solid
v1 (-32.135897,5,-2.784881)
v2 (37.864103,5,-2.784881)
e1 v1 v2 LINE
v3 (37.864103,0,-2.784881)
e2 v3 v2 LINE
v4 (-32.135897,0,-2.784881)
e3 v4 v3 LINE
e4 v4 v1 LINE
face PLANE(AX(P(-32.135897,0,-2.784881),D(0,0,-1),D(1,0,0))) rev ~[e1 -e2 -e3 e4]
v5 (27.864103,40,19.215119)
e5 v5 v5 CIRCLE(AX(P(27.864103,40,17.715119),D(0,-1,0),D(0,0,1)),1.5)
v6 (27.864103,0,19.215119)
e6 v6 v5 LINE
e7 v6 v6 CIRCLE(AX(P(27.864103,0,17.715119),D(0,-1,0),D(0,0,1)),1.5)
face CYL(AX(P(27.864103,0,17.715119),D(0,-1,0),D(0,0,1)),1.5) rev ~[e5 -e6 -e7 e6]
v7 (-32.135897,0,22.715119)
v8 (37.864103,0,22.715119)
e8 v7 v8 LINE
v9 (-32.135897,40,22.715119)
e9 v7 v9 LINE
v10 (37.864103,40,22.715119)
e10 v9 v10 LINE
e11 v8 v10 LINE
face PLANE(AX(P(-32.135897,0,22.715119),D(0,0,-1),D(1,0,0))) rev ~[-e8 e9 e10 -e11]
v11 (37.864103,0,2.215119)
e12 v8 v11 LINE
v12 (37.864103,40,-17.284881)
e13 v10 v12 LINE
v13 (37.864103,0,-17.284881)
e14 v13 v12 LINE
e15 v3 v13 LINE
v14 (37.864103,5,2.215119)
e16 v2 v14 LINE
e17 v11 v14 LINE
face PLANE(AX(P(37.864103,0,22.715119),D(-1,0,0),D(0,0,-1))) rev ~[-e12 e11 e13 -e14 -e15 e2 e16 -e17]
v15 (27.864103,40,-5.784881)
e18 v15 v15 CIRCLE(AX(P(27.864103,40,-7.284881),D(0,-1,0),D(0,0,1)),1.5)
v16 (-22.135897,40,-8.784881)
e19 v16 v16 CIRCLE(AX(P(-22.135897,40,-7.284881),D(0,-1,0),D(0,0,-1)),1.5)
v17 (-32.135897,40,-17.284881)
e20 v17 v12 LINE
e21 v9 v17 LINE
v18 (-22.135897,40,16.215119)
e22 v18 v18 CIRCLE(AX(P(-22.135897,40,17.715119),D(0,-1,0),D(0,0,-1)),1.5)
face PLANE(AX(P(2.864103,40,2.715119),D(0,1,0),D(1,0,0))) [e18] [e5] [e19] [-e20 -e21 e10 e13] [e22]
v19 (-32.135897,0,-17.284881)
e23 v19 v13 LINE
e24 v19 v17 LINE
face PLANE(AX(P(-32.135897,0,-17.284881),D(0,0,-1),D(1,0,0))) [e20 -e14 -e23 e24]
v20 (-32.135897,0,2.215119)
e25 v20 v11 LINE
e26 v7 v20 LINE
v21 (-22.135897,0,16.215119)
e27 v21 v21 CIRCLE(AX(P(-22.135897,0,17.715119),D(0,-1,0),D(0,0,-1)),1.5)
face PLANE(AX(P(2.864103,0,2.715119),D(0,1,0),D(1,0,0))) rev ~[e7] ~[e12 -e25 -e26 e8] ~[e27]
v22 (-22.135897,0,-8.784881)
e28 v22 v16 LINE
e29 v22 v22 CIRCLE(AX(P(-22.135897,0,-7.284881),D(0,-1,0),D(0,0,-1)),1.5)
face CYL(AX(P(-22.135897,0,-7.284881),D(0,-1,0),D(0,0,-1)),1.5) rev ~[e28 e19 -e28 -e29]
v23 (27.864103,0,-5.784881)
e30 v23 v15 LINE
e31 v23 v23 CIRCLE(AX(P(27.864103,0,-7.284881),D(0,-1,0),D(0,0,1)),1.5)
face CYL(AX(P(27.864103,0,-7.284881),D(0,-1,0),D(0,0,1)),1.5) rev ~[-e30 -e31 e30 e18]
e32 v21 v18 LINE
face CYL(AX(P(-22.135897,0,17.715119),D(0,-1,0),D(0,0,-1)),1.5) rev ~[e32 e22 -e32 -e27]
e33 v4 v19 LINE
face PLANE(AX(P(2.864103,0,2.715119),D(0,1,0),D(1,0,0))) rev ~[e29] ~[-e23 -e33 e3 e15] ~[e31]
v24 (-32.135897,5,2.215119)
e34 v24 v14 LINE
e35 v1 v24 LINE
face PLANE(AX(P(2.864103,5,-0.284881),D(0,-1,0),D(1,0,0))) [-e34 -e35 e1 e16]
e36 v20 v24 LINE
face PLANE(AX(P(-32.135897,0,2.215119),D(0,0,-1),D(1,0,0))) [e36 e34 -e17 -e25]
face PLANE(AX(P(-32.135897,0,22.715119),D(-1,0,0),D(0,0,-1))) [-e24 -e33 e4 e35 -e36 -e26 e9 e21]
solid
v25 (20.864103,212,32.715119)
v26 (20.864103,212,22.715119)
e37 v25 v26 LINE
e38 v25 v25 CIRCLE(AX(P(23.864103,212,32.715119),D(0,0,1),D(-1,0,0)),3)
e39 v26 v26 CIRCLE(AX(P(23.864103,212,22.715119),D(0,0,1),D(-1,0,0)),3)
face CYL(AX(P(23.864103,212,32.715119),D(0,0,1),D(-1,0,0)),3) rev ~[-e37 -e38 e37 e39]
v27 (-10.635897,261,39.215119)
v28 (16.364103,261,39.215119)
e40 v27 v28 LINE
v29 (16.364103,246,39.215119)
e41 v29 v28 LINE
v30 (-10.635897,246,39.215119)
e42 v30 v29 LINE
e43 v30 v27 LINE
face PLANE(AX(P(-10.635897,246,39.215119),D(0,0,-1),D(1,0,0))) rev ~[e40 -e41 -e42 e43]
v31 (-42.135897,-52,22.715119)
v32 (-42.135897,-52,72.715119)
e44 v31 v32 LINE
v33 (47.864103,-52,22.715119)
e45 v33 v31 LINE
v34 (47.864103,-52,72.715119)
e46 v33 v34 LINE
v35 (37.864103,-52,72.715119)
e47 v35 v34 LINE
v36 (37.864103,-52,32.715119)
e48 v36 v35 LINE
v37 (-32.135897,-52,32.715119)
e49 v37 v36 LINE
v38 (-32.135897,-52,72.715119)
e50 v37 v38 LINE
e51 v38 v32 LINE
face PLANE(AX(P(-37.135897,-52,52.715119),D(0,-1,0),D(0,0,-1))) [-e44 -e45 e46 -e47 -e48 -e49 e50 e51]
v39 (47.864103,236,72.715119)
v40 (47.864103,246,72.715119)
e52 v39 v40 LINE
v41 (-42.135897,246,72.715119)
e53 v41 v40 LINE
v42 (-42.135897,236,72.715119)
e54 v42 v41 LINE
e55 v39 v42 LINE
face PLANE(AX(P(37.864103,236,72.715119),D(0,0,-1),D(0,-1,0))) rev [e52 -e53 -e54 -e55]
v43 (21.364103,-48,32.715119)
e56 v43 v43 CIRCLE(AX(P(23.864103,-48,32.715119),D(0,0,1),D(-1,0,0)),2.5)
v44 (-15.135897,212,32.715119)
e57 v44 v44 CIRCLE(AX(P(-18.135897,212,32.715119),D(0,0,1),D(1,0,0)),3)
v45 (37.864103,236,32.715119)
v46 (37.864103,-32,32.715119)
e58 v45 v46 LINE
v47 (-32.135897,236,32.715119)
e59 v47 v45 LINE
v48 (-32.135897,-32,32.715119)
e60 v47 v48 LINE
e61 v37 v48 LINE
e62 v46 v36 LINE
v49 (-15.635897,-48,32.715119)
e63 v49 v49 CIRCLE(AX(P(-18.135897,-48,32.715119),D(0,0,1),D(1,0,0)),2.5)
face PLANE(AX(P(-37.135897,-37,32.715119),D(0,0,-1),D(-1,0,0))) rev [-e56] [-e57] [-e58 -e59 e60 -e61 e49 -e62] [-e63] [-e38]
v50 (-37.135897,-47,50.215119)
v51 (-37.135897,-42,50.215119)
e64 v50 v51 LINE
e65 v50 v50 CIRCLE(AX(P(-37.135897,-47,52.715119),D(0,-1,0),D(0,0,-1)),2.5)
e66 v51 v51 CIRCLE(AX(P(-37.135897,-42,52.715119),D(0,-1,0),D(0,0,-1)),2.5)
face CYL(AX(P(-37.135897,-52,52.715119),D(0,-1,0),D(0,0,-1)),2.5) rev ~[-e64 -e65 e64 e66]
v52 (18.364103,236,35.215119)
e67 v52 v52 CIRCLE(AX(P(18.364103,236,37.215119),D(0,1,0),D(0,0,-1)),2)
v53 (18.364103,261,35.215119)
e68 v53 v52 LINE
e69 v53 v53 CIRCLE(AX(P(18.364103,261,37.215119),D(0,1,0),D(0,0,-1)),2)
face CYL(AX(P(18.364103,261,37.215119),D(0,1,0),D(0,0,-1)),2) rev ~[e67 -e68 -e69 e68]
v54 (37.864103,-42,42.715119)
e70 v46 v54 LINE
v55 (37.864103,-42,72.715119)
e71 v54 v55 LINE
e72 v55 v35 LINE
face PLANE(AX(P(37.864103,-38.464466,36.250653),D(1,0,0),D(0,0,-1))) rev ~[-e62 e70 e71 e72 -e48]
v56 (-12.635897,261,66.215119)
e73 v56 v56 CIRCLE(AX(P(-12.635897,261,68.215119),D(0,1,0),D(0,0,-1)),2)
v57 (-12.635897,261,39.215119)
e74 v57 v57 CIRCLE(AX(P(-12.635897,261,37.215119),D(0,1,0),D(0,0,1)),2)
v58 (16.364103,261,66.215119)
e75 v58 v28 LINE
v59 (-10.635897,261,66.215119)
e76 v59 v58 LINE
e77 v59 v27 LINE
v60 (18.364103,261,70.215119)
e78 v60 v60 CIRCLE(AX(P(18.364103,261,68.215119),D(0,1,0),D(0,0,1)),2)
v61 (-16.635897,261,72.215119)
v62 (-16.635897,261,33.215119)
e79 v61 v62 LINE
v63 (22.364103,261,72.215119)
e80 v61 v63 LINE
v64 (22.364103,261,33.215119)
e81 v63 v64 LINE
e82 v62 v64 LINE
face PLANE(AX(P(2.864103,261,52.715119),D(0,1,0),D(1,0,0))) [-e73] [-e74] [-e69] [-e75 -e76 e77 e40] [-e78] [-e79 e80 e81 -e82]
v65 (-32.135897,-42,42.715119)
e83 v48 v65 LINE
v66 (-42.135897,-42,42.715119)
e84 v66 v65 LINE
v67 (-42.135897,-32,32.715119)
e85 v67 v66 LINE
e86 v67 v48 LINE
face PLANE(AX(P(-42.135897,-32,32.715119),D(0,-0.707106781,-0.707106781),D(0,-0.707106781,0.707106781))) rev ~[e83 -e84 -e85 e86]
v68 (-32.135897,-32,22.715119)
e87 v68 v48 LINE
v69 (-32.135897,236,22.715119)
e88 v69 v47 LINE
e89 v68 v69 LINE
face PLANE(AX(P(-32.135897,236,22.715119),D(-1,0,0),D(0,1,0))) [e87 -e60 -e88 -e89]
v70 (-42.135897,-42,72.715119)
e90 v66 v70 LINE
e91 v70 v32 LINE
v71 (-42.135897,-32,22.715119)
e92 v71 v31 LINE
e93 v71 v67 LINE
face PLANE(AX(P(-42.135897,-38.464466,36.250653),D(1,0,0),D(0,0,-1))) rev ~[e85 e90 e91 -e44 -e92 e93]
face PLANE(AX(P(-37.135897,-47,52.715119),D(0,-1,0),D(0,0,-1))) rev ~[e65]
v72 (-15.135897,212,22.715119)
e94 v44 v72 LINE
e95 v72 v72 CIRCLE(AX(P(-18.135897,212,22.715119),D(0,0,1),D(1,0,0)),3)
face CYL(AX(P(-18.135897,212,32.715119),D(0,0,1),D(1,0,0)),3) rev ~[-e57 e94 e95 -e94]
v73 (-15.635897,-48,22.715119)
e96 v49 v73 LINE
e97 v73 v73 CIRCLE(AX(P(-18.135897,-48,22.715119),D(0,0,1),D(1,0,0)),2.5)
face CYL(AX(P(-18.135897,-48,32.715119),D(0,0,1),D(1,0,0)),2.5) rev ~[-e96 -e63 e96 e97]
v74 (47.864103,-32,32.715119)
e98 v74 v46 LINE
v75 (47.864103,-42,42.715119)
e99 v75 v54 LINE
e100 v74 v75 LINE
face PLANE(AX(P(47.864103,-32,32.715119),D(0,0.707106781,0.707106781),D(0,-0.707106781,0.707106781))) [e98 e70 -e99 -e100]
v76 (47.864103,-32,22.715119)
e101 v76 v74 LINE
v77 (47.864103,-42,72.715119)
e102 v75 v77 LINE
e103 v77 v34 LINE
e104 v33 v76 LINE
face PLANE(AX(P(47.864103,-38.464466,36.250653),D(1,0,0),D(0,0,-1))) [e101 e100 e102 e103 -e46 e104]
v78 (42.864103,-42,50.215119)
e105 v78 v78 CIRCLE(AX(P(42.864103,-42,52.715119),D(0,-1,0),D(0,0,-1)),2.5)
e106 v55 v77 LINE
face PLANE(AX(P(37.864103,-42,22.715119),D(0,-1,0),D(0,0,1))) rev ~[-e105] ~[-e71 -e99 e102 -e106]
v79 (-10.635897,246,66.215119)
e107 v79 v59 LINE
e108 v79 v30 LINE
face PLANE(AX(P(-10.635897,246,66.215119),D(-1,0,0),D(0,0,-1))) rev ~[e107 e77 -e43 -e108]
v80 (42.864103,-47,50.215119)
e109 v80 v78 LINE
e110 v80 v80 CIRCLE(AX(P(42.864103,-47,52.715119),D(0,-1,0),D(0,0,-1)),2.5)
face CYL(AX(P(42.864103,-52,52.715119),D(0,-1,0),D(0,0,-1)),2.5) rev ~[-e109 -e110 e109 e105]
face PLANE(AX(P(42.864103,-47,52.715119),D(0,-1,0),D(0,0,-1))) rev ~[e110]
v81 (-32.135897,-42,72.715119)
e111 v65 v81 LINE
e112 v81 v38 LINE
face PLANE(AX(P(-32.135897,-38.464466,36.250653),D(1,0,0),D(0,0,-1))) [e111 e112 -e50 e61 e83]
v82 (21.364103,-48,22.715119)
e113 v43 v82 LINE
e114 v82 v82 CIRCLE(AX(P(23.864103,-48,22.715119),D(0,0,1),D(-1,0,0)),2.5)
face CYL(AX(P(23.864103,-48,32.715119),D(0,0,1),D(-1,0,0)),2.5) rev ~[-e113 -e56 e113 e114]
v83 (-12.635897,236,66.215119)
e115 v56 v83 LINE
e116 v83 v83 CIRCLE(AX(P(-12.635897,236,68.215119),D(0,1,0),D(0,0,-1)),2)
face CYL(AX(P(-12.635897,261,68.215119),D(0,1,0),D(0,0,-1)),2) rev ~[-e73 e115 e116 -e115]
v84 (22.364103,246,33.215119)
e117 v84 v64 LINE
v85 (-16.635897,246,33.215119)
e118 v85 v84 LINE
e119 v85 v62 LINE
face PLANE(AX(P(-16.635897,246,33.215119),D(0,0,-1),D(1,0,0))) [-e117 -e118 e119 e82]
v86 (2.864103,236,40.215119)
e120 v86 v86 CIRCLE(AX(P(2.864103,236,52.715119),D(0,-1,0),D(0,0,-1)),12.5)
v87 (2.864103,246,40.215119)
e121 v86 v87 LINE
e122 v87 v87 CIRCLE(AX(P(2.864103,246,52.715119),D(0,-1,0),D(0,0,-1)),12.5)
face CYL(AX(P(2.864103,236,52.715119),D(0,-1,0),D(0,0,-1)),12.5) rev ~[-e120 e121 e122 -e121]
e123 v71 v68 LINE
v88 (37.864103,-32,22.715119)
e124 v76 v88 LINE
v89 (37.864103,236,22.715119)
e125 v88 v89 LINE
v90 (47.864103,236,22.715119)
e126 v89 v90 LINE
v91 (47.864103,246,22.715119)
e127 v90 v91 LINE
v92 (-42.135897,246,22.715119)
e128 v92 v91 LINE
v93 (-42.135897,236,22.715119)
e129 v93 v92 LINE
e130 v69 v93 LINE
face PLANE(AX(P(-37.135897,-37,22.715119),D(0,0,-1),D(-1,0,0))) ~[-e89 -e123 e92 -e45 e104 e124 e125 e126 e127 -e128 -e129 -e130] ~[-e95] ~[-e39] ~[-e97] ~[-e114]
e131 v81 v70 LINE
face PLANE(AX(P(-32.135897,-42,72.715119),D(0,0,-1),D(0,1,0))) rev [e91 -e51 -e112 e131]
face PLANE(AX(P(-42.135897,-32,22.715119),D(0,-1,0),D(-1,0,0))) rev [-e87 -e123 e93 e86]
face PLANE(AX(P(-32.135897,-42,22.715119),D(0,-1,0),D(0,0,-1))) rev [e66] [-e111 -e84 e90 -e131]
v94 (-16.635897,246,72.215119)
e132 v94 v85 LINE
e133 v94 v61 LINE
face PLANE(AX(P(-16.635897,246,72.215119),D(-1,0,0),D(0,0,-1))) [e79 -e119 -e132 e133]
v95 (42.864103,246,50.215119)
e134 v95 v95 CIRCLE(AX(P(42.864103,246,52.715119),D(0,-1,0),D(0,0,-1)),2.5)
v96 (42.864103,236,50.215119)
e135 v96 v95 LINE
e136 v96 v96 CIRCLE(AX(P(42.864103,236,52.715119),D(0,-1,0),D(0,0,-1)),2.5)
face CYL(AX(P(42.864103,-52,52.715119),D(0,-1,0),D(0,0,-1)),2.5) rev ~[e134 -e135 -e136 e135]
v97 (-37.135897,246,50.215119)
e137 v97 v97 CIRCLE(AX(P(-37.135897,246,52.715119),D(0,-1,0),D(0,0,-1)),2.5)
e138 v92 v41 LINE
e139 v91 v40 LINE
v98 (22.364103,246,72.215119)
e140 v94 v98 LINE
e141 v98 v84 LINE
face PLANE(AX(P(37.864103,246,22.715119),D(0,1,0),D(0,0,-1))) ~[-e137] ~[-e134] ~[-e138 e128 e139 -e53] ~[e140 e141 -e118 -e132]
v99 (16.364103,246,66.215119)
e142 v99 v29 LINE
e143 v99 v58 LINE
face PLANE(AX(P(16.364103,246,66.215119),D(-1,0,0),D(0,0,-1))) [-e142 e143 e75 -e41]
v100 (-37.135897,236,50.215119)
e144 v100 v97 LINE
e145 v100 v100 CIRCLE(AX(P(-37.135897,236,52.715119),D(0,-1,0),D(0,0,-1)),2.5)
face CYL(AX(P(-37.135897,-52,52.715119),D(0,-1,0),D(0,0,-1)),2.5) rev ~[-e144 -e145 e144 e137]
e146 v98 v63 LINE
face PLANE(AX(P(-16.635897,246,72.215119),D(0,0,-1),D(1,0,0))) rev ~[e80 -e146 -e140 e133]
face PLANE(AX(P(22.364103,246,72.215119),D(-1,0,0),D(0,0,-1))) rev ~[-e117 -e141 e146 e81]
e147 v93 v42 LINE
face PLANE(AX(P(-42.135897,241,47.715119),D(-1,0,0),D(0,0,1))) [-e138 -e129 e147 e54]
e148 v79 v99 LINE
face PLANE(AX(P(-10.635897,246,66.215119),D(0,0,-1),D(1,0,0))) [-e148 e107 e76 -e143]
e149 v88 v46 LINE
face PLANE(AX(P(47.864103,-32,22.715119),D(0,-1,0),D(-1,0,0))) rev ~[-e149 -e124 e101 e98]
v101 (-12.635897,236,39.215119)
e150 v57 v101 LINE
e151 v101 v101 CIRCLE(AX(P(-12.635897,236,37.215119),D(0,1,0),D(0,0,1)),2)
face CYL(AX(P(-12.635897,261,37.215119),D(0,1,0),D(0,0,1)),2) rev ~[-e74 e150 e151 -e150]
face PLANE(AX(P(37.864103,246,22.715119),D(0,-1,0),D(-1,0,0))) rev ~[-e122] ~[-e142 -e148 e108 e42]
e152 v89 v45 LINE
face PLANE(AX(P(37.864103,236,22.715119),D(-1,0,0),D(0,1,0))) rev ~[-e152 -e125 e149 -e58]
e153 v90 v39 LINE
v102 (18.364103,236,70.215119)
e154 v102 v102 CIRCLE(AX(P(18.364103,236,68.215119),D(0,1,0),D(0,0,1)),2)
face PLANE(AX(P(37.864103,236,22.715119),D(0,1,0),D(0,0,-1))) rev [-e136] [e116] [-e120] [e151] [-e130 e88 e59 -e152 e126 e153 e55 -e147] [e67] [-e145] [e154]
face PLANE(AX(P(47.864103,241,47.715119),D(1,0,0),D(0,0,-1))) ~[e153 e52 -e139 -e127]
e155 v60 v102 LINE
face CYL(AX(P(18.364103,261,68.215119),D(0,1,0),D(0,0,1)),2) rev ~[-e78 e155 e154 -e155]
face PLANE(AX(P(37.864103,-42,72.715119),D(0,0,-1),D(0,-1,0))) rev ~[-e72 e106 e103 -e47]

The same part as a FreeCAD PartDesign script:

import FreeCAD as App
import Part
import Sketcher

doc = App.newDocument("Part")
params = doc.addObject("Spreadsheet::Sheet", "Params")
for row, (alias, value) in enumerate([
    ("sketch1_width", "70 mm"),
    ("sketch1_height", "40 mm"),
    ("pad1_length", "40 mm"),
    ("sketch2_diameter", "3 mm"),
    ("sketch3_width", "70 mm"),
    ("sketch3_height", "5 mm"),
    ("pocket2_length", "5 mm"),
    ("sketch4_width", "70 mm"),
    ("sketch4_height", "10 mm"),
    ("pad2_length", "52 mm"),
    ("pad2_length2", "236 mm"),
    ("sketch5_diameter", "5 mm"),
    ("pocket3_length", "10 mm"),
    ("sketch6_diameter", "6 mm"),
    ("pocket4_length", "10 mm"),
    ("sketch7_width", "70 mm"),
    ("sketch7_height", "10 mm"),
    ("pad3_length", "50 mm"),
    ("sketch8_diameter", "25 mm"),
    ("pocket5_length", "10 mm"),
    ("sketch9_width", "39 mm"),
    ("sketch9_width2", "27 mm"),
    ("pad4_length", "15 mm"),
    ("sketch10_diameter", "4 mm"),
    ("pocket6_length", "25 mm"),
    ("sketch11_width", "10 mm"),
    ("sketch11_height", "50 mm"),
    ("pad5_length", "10 mm"),
    ("sketch12_width", "10 mm"),
    ("sketch12_height", "50 mm"),
    ("pad6_length", "10 mm"),
    ("sketch13_diameter", "5 mm"),
    ("sketch14_diameter", "5 mm"),
    ("pad7_length", "5 mm"),
    ("sketch15_width", "10 mm"),
    ("pad8_length", "10 mm"),
    ("sketch16_width", "10 mm"),
    ("pad9_length", "10 mm"),
    ("sketch17_width", "10 mm"),
    ("pad10_length", "10 mm"),
], start=1):
    params.set(f"A{row}", alias)
    params.set(f"B{row}", "=" + value)
    params.setAlias(f"B{row}", alias)

body = doc.addObject("PartDesign::Body", "Body")

# Sketch on XZ plane
sketch1 = body.newObject("Sketcher::SketchObject", "Sketch")
sketch1.AttachmentSupport = (doc.getObject("XZ_Plane"), [""])
sketch1.MapMode = "FlatFace"
sketch1.addGeometry([
    Part.LineSegment(App.Vector(-32.135897, -17.284881, 0), App.Vector(-32.135897, 22.715119, 0)),
    Part.LineSegment(App.Vector(-32.135897, 22.715119, 0), App.Vector(37.864103, 22.715119, 0)),
    Part.LineSegment(App.Vector(37.864103, 22.715119, 0), App.Vector(37.864103, -17.284881, 0)),
    Part.LineSegment(App.Vector(37.864103, -17.284881, 0), App.Vector(-32.135897, -17.284881, 0)),
], False)
sketch1.addConstraint([
    Sketcher.Constraint("Coincident", 0, 2, 1, 1),
    Sketcher.Constraint("Coincident", 1, 2, 2, 1),
    Sketcher.Constraint("Coincident", 2, 2, 3, 1),
    Sketcher.Constraint("Coincident", 3, 2, 0, 1),
    Sketcher.Constraint("Vertical", 0),
    Sketcher.Constraint("Horizontal", 1),
    Sketcher.Constraint("Vertical", 2),
    Sketcher.Constraint("Horizontal", 3),
    Sketcher.Constraint("DistanceX", 1, 1, 1, 2, 70.0),
    Sketcher.Constraint("DistanceY", 0, 1, 0, 2, 40.0),
    Sketcher.Constraint("DistanceY", -1, 1, 0, 2, 22.715119),
    Sketcher.Constraint("DistanceX", 0, 2, -1, 1, 32.135897),
])
sketch1.setExpression("Constraints[8]", "Params.sketch1_width")
sketch1.setExpression("Constraints[9]", "Params.sketch1_height")
pad1 = body.newObject("PartDesign::Pad", "Pad")
pad1.Profile = sketch1
pad1.setExpression("Length", "Params.pad1_length")
pad1.Reversed = True

# Sketch on XZ plane
sketch2 = body.newObject("Sketcher::SketchObject", "Sketch001")
sketch2.AttachmentSupport = (doc.getObject("XZ_Plane"), [""])
sketch2.MapMode = "FlatFace"
sketch2.addGeometry([
    Part.Circle(App.Vector(-22.135897, 17.715119, 0), App.Vector(0, 0, 1), 1.5),
    Part.Circle(App.Vector(27.864103, 17.715119, 0), App.Vector(0, 0, 1), 1.5),
    Part.Circle(App.Vector(-22.135897, -7.284881, 0), App.Vector(0, 0, 1), 1.5),
    Part.Circle(App.Vector(27.864103, -7.284881, 0), App.Vector(0, 0, 1), 1.5),
], False)
sketch2.addConstraint([
    Sketcher.Constraint("Equal", 0, 1),
    Sketcher.Constraint("Equal", 1, 2),
    Sketcher.Constraint("Equal", 2, 3),
    Sketcher.Constraint("Horizontal", 0, 3, 1, 3),
    Sketcher.Constraint("Horizontal", 2, 3, 3, 3),
    Sketcher.Constraint("Vertical", 0, 3, 2, 3),
    Sketcher.Constraint("Vertical", 1, 3, 3, 3),
    Sketcher.Constraint("Diameter", 0, 3.0),
    Sketcher.Constraint("DistanceX", 0, 3, 1, 3, 50.0),
    Sketcher.Constraint("DistanceY", 2, 3, 0, 3, 25.0),
    Sketcher.Constraint("DistanceY", -1, 1, 0, 3, 17.715119),
    Sketcher.Constraint("DistanceX", 0, 3, -1, 1, 22.135897),
])
sketch2.setExpression("Constraints[7]", "Params.sketch2_diameter")
pocket1 = body.newObject("PartDesign::Pocket", "Pocket")
pocket1.Profile = sketch2
pocket1.Type = "ThroughAll"

# Sketch on XZ plane
sketch3 = body.newObject("Sketcher::SketchObject", "Sketch002")
sketch3.AttachmentSupport = (doc.getObject("XZ_Plane"), [""])
sketch3.MapMode = "FlatFace"
sketch3.addGeometry([
    Part.LineSegment(App.Vector(-32.135897, 2.215119, 0), App.Vector(-32.135897, -2.784881, 0)),
    Part.LineSegment(App.Vector(-32.135897, -2.784881, 0), App.Vector(37.864103, -2.784881, 0)),
    Part.LineSegment(App.Vector(37.864103, -2.784881, 0), App.Vector(37.864103, 2.215119, 0)),
    Part.LineSegment(App.Vector(37.864103, 2.215119, 0), App.Vector(-32.135897, 2.215119, 0)),
], False)
sketch3.addConstraint([
    Sketcher.Constraint("Coincident", 0, 2, 1, 1),
    Sketcher.Constraint("Coincident", 1, 2, 2, 1),
    Sketcher.Constraint("Coincident", 2, 2, 3, 1),
    Sketcher.Constraint("Coincident", 3, 2, 0, 1),
    Sketcher.Constraint("Vertical", 0),
    Sketcher.Constraint("Horizontal", 1),
    Sketcher.Constraint("Vertical", 2),
    Sketcher.Constraint("Horizontal", 3),
    Sketcher.Constraint("DistanceX", 1, 1, 1, 2, 70.0),
    Sketcher.Constraint("DistanceY", 0, 2, 0, 1, 5.0),
    Sketcher.Constraint("DistanceY", 0, 2, -1, 1, 2.784881),
    Sketcher.Constraint("DistanceX", 0, 2, -1, 1, 32.135897),
])
sketch3.setExpression("Constraints[8]", "Params.sketch3_width")
sketch3.setExpression("Constraints[9]", "Params.sketch3_height")
pocket2 = body.newObject("PartDesign::Pocket", "Pocket001")
pocket2.Profile = sketch3
pocket2.setExpression("Length", "Params.pocket2_length")
body2 = doc.addObject("PartDesign::Body", "Body001")

# Sketch on XZ plane
sketch4 = body2.newObject("Sketcher::SketchObject", "Sketch003")
sketch4.AttachmentSupport = (doc.getObject("XZ_Plane001"), [""])
sketch4.MapMode = "FlatFace"
sketch4.addGeometry([
    Part.LineSegment(App.Vector(-32.135897, 32.715119, 0), App.Vector(-32.135897, 22.715119, 0)),
    Part.LineSegment(App.Vector(-32.135897, 22.715119, 0), App.Vector(37.864103, 22.715119, 0)),
    Part.LineSegment(App.Vector(37.864103, 22.715119, 0), App.Vector(37.864103, 32.715119, 0)),
    Part.LineSegment(App.Vector(37.864103, 32.715119, 0), App.Vector(-32.135897, 32.715119, 0)),
], False)
sketch4.addConstraint([
    Sketcher.Constraint("Coincident", 0, 2, 1, 1),
    Sketcher.Constraint("Coincident", 1, 2, 2, 1),
    Sketcher.Constraint("Coincident", 2, 2, 3, 1),
    Sketcher.Constraint("Coincident", 3, 2, 0, 1),
    Sketcher.Constraint("Vertical", 0),
    Sketcher.Constraint("Horizontal", 1),
    Sketcher.Constraint("Vertical", 2),
    Sketcher.Constraint("Horizontal", 3),
    Sketcher.Constraint("DistanceX", 1, 1, 1, 2, 70.0),
    Sketcher.Constraint("DistanceY", 0, 2, 0, 1, 10.0),
    Sketcher.Constraint("DistanceY", -1, 1, 0, 2, 22.715119),
    Sketcher.Constraint("DistanceX", 0, 2, -1, 1, 32.135897),
])
sketch4.setExpression("Constraints[8]", "Params.sketch4_width")
sketch4.setExpression("Constraints[9]", "Params.sketch4_height")
pad2 = body2.newObject("PartDesign::Pad", "Pad001")
pad2.Profile = sketch4
pad2.Type = "TwoLengths"
pad2.setExpression("Length", "Params.pad2_length")
pad2.setExpression("Length2", "Params.pad2_length2")

# Sketch on XY plane
sketch5 = body2.newObject("Sketcher::SketchObject", "Sketch004")
sketch5.AttachmentSupport = (doc.getObject("XY_Plane001"), [""])
sketch5.MapMode = "FlatFace"
sketch5.AttachmentOffset = App.Placement(App.Vector(0, 0, 32.715119), App.Rotation())
sketch5.addGeometry([
    Part.Circle(App.Vector(-18.135897, -48, 0), App.Vector(0, 0, 1), 2.5),
    Part.Circle(App.Vector(23.864103, -48, 0), App.Vector(0, 0, 1), 2.5),
], False)
sketch5.addConstraint([
    Sketcher.Constraint("Equal", 0, 1),
    Sketcher.Constraint("Horizontal", 0, 3, 1, 3),
    Sketcher.Constraint("Diameter", 0, 5.0),
    Sketcher.Constraint("DistanceY", 0, 3, -1, 1, 48.0),
    Sketcher.Constraint("DistanceX", 0, 3, 1, 3, 42.0),
    Sketcher.Constraint("DistanceX", 0, 3, -1, 1, 18.135897),
])
sketch5.setExpression("Constraints[2]", "Params.sketch5_diameter")
pocket3 = body2.newObject("PartDesign::Pocket", "Pocket002")
pocket3.Profile = sketch5
pocket3.setExpression("Length", "Params.pocket3_length")

# Sketch on XY plane
sketch6 = body2.newObject("Sketcher::SketchObject", "Sketch005")
sketch6.AttachmentSupport = (doc.getObject("XY_Plane001"), [""])
sketch6.MapMode = "FlatFace"
sketch6.AttachmentOffset = App.Placement(App.Vector(0, 0, 32.715119), App.Rotation())
sketch6.addGeometry([
    Part.Circle(App.Vector(-18.135897, 212, 0), App.Vector(0, 0, 1), 3),
    Part.Circle(App.Vector(23.864103, 212, 0), App.Vector(0, 0, 1), 3),
], False)
sketch6.addConstraint([
    Sketcher.Constraint("Equal", 0, 1),
    Sketcher.Constraint("Horizontal", 0, 3, 1, 3),
    Sketcher.Constraint("Diameter", 0, 6.0),
    Sketcher.Constraint("DistanceY", -1, 1, 0, 3, 212.0),
    Sketcher.Constraint("DistanceX", 0, 3, 1, 3, 42.0),
    Sketcher.Constraint("DistanceX", 0, 3, -1, 1, 18.135897),
])
sketch6.setExpression("Constraints[2]", "Params.sketch6_diameter")
pocket4 = body2.newObject("PartDesign::Pocket", "Pocket003")
pocket4.Profile = sketch6
pocket4.setExpression("Length", "Params.pocket4_length")

# Sketch on XY plane
sketch7 = body2.newObject("Sketcher::SketchObject", "Sketch006")
sketch7.AttachmentSupport = (doc.getObject("XY_Plane001"), [""])
sketch7.MapMode = "FlatFace"
sketch7.AttachmentOffset = App.Placement(App.Vector(0, 0, 22.715119), App.Rotation())
sketch7.addGeometry([
    Part.LineSegment(App.Vector(37.864103, 246, 0), App.Vector(37.864103, 236, 0)),
    Part.LineSegment(App.Vector(37.864103, 236, 0), App.Vector(-32.135897, 236, 0)),
    Part.LineSegment(App.Vector(-32.135897, 236, 0), App.Vector(-32.135897, 246, 0)),
    Part.LineSegment(App.Vector(-32.135897, 246, 0), App.Vector(37.864103, 246, 0)),
], False)
sketch7.addConstraint([
    Sketcher.Constraint("Coincident", 0, 2, 1, 1),
    Sketcher.Constraint("Coincident", 1, 2, 2, 1),
    Sketcher.Constraint("Coincident", 2, 2, 3, 1),
    Sketcher.Constraint("Coincident", 3, 2, 0, 1),
    Sketcher.Constraint("Vertical", 0),
    Sketcher.Constraint("Horizontal", 1),
    Sketcher.Constraint("Vertical", 2),
    Sketcher.Constraint("Horizontal", 3),
    Sketcher.Constraint("DistanceX", 1, 2, 1, 1, 70.0),
    Sketcher.Constraint("DistanceY", 0, 2, 0, 1, 10.0),
    Sketcher.Constraint("DistanceY", -1, 1, 0, 2, 236.0),
    Sketcher.Constraint("DistanceX", -1, 1, 0, 2, 37.864103),
])
sketch7.setExpression("Constraints[8]", "Params.sketch7_width")
sketch7.setExpression("Constraints[9]", "Params.sketch7_height")
pad3 = body2.newObject("PartDesign::Pad", "Pad002")
pad3.Profile = sketch7
pad3.setExpression("Length", "Params.pad3_length")

# Sketch on XZ plane
sketch8 = body2.newObject("Sketcher::SketchObject", "Sketch007")
sketch8.AttachmentSupport = (doc.getObject("XZ_Plane001"), [""])
sketch8.MapMode = "FlatFace"
sketch8.AttachmentOffset = App.Placement(App.Vector(0, 0, -236), App.Rotation())
sketch8.addGeometry(Part.Circle(App.Vector(2.864103, 52.715119, 0), App.Vector(0, 0, 1), 12.5), False)
sketch8.addConstraint([
    Sketcher.Constraint("Diameter", 0, 25.0),
    Sketcher.Constraint("DistanceY", -1, 1, 0, 3, 52.715119),
    Sketcher.Constraint("DistanceX", -1, 1, 0, 3, 2.864103),
])
sketch8.setExpression("Constraints[0]", "Params.sketch8_diameter")
pocket5 = body2.newObject("PartDesign::Pocket", "Pocket004")
pocket5.Profile = sketch8
pocket5.setExpression("Length", "Params.pocket5_length")

# Sketch on XZ plane
sketch9 = body2.newObject("Sketcher::SketchObject", "Sketch008")
sketch9.AttachmentSupport = (doc.getObject("XZ_Plane001"), [""])
sketch9.MapMode = "FlatFace"
sketch9.AttachmentOffset = App.Placement(App.Vector(0, 0, -246), App.Rotation())
sketch9.addGeometry([
    Part.LineSegment(App.Vector(-16.635897, 33.215119, 0), App.Vector(-16.635897, 72.215119, 0)),  # 0
    Part.LineSegment(App.Vector(-16.635897, 72.215119, 0), App.Vector(22.364103, 72.215119, 0)),  # 1
    Part.LineSegment(App.Vector(22.364103, 72.215119, 0), App.Vector(22.364103, 33.215119, 0)),  # 2
    Part.LineSegment(App.Vector(22.364103, 33.215119, 0), App.Vector(-16.635897, 33.215119, 0)),  # 3
    Part.LineSegment(App.Vector(16.364103, 66.215119, 0), App.Vector(-10.635897, 66.215119, 0)),  # 4
    Part.LineSegment(App.Vector(-10.635897, 66.215119, 0), App.Vector(-10.635897, 39.215119, 0)),  # 5
    Part.LineSegment(App.Vector(-10.635897, 39.215119, 0), App.Vector(16.364103, 39.215119, 0)),  # 6
    Part.LineSegment(App.Vector(16.364103, 39.215119, 0), App.Vector(16.364103, 66.215119, 0)),  # 7
], False)
sketch9.addConstraint([
    Sketcher.Constraint("Coincident", 0, 2, 1, 1),
    Sketcher.Constraint("Coincident", 1, 2, 2, 1),
    Sketcher.Constraint("Coincident", 2, 2, 3, 1),
    Sketcher.Constraint("Coincident", 3, 2, 0, 1),
    Sketcher.Constraint("Coincident", 4, 2, 5, 1),
    Sketcher.Constraint("Coincident", 5, 2, 6, 1),
    Sketcher.Constraint("Coincident", 6, 2, 7, 1),
    Sketcher.Constraint("Coincident", 7, 2, 4, 1),
    Sketcher.Constraint("Vertical", 0),
    Sketcher.Constraint("Horizontal", 1),
    Sketcher.Constraint("Vertical", 2),
    Sketcher.Constraint("Horizontal", 3),
    Sketcher.Constraint("Horizontal", 4),
    Sketcher.Constraint("Vertical", 5),
    Sketcher.Constraint("Horizontal", 6),
    Sketcher.Constraint("Vertical", 7),
    Sketcher.Constraint("Equal", 3, 0),
    Sketcher.Constraint("Equal", 6, 5),
    Sketcher.Constraint("DistanceX", 1, 1, 1, 2, 39.0),
    Sketcher.Constraint("DistanceX", 4, 2, 4, 1, 27.0),
    Sketcher.Constraint("DistanceX", 0, 2, 4, 2, 6.0),
    Sketcher.Constraint("DistanceY", 4, 2, 0, 2, 6.0),
    Sketcher.Constraint("DistanceY", -1, 1, 0, 2, 72.215119),
    Sketcher.Constraint("DistanceX", 0, 2, -1, 1, 16.635897),
])
sketch9.setExpression("Constraints[18]", "Params.sketch9_width")
sketch9.setExpression("Constraints[19]", "Params.sketch9_width2")
pad4 = body2.newObject("PartDesign::Pad", "Pad003")
pad4.Profile = sketch9
pad4.setExpression("Length", "Params.pad4_length")
pad4.Reversed = True

# Sketch on XZ plane
sketch10 = body2.newObject("Sketcher::SketchObject", "Sketch009")
sketch10.AttachmentSupport = (doc.getObject("XZ_Plane001"), [""])
sketch10.MapMode = "FlatFace"
sketch10.AttachmentOffset = App.Placement(App.Vector(0, 0, -261), App.Rotation())
sketch10.addGeometry([
    Part.Circle(App.Vector(-12.635897, 37.215119, 0), App.Vector(0, 0, 1), 2),
    Part.Circle(App.Vector(18.364103, 37.215119, 0), App.Vector(0, 0, 1), 2),
    Part.Circle(App.Vector(-12.635897, 68.215119, 0), App.Vector(0, 0, 1), 2),
    Part.Circle(App.Vector(18.364103, 68.215119, 0), App.Vector(0, 0, 1), 2),
], False)
sketch10.addConstraint([
    Sketcher.Constraint("Equal", 0, 1),
    Sketcher.Constraint("Equal", 1, 2),
    Sketcher.Constraint("Equal", 2, 3),
    Sketcher.Constraint("Horizontal", 0, 3, 1, 3),
    Sketcher.Constraint("Horizontal", 2, 3, 3, 3),
    Sketcher.Constraint("Vertical", 0, 3, 2, 3),
    Sketcher.Constraint("Vertical", 1, 3, 3, 3),
    Sketcher.Constraint("Diameter", 0, 4.0),
    Sketcher.Constraint("DistanceX", 0, 3, 1, 3, 31.0),
    Sketcher.Constraint("DistanceY", 0, 3, 2, 3, 31.0),
    Sketcher.Constraint("DistanceY", -1, 1, 0, 3, 37.215119),
    Sketcher.Constraint("DistanceX", 0, 3, -1, 1, 12.635897),
])
sketch10.setExpression("Constraints[7]", "Params.sketch10_diameter")
pocket6 = body2.newObject("PartDesign::Pocket", "Pocket005")
pocket6.Profile = sketch10
pocket6.setExpression("Length", "Params.pocket6_length")
pocket6.Reversed = True

# Sketch on YZ plane
sketch11 = body2.newObject("Sketcher::SketchObject", "Sketch010")
sketch11.AttachmentSupport = (doc.getObject("YZ_Plane001"), [""])
sketch11.MapMode = "FlatFace"
sketch11.AttachmentOffset = App.Placement(App.Vector(0, 0, -32.135897), App.Rotation())
sketch11.addGeometry([
    Part.LineSegment(App.Vector(246, 22.715119, 0), App.Vector(236, 22.715119, 0)),
    Part.LineSegment(App.Vector(236, 22.715119, 0), App.Vector(236, 72.715119, 0)),
    Part.LineSegment(App.Vector(236, 72.715119, 0), App.Vector(246, 72.715119, 0)),
    Part.LineSegment(App.Vector(246, 72.715119, 0), App.Vector(246, 22.715119, 0)),
], False)
sketch11.addConstraint([
    Sketcher.Constraint("Coincident", 0, 2, 1, 1),
    Sketcher.Constraint("Coincident", 1, 2, 2, 1),
    Sketcher.Constraint("Coincident", 2, 2, 3, 1),
    Sketcher.Constraint("Coincident", 3, 2, 0, 1),
    Sketcher.Constraint("Horizontal", 0),
    Sketcher.Constraint("Vertical", 1),
    Sketcher.Constraint("Horizontal", 2),
    Sketcher.Constraint("Vertical", 3),
    Sketcher.Constraint("DistanceX", 0, 2, 0, 1, 10.0),
    Sketcher.Constraint("DistanceY", 1, 1, 1, 2, 50.0),
    Sketcher.Constraint("DistanceX", -1, 1, 0, 2, 236.0),
    Sketcher.Constraint("DistanceY", -1, 1, 0, 2, 22.715119),
])
sketch11.setExpression("Constraints[8]", "Params.sketch11_width")
sketch11.setExpression("Constraints[9]", "Params.sketch11_height")
pad5 = body2.newObject("PartDesign::Pad", "Pad004")
pad5.Profile = sketch11
pad5.setExpression("Length", "Params.pad5_length")
pad5.Reversed = True
doc.recompute()

datumplane = body2.newObject("PartDesign::Plane", "DatumPlane")
datumplane.AttachmentSupport = (doc.getObject("XZ_Plane001"), [""])
datumplane.MapMode = "FlatFace"
datumplane.AttachmentOffset = App.Placement(App.Vector(0, 0, -97), App.Rotation())
mirrored = body2.newObject("PartDesign::Mirrored", "Mirrored")
mirrored.Originals = [pad5]
mirrored.MirrorPlane = (datumplane, [""])
body2.Tip = mirrored
doc.recompute()

datumplane2 = body2.newObject("PartDesign::Plane", "DatumPlane001")
datumplane2.AttachmentSupport = (doc.getObject("YZ_Plane001"), [""])
datumplane2.MapMode = "FlatFace"
datumplane2.AttachmentOffset = App.Placement(App.Vector(0, 0, 2.864103), App.Rotation())
mirrored2 = body2.newObject("PartDesign::Mirrored", "Mirrored001")
mirrored2.Originals = [pad5]
mirrored2.MirrorPlane = (datumplane2, [""])
body2.Tip = mirrored2

# Sketch on YZ plane
sketch12 = body2.newObject("Sketcher::SketchObject", "Sketch011")
sketch12.AttachmentSupport = (doc.getObject("YZ_Plane001"), [""])
sketch12.MapMode = "FlatFace"
sketch12.AttachmentOffset = App.Placement(App.Vector(0, 0, 37.864103), App.Rotation())
sketch12.addGeometry([
    Part.LineSegment(App.Vector(-52, 22.715119, 0), App.Vector(-42, 22.715119, 0)),
    Part.LineSegment(App.Vector(-42, 22.715119, 0), App.Vector(-42, 72.715119, 0)),
    Part.LineSegment(App.Vector(-42, 72.715119, 0), App.Vector(-52, 72.715119, 0)),
    Part.LineSegment(App.Vector(-52, 72.715119, 0), App.Vector(-52, 22.715119, 0)),
], False)
sketch12.addConstraint([
    Sketcher.Constraint("Coincident", 0, 2, 1, 1),
    Sketcher.Constraint("Coincident", 1, 2, 2, 1),
    Sketcher.Constraint("Coincident", 2, 2, 3, 1),
    Sketcher.Constraint("Coincident", 3, 2, 0, 1),
    Sketcher.Constraint("Horizontal", 0),
    Sketcher.Constraint("Vertical", 1),
    Sketcher.Constraint("Horizontal", 2),
    Sketcher.Constraint("Vertical", 3),
    Sketcher.Constraint("DistanceX", 0, 1, 0, 2, 10.0),
    Sketcher.Constraint("DistanceY", 1, 1, 1, 2, 50.0),
    Sketcher.Constraint("DistanceX", 0, 2, -1, 1, 42.0),
    Sketcher.Constraint("DistanceY", -1, 1, 0, 2, 22.715119),
])
sketch12.setExpression("Constraints[8]", "Params.sketch12_width")
sketch12.setExpression("Constraints[9]", "Params.sketch12_height")
pad6 = body2.newObject("PartDesign::Pad", "Pad005")
pad6.Profile = sketch12
pad6.setExpression("Length", "Params.pad6_length")

# Sketch on XZ plane
sketch13 = body2.newObject("Sketcher::SketchObject", "Sketch012")
sketch13.AttachmentSupport = (doc.getObject("XZ_Plane001"), [""])
sketch13.MapMode = "FlatFace"
sketch13.AttachmentOffset = App.Placement(App.Vector(0, 0, 52), App.Rotation())
sketch13.addGeometry([
    Part.Circle(App.Vector(-37.135897, 52.715119, 0), App.Vector(0, 0, 1), 2.5),
    Part.Circle(App.Vector(42.864103, 52.715119, 0), App.Vector(0, 0, 1), 2.5),
], False)
sketch13.addConstraint([
    Sketcher.Constraint("Equal", 0, 1),
    Sketcher.Constraint("Horizontal", 0, 3, 1, 3),
    Sketcher.Constraint("Diameter", 0, 5.0),
    Sketcher.Constraint("DistanceX", 0, 3, 1, 3, 80.0),
    Sketcher.Constraint("DistanceY", -1, 1, 0, 3, 52.715119),
    Sketcher.Constraint("DistanceX", 0, 3, -1, 1, 37.135897),
])
sketch13.setExpression("Constraints[2]", "Params.sketch13_diameter")
pocket7 = body2.newObject("PartDesign::Pocket", "Pocket006")
pocket7.Profile = sketch13
pocket7.Type = "ThroughAll"

# Sketch on XZ plane
sketch14 = body2.newObject("Sketcher::SketchObject", "Sketch013")
sketch14.AttachmentSupport = (doc.getObject("XZ_Plane001"), [""])
sketch14.MapMode = "FlatFace"
sketch14.AttachmentOffset = App.Placement(App.Vector(0, 0, 52), App.Rotation())
sketch14.addGeometry([
    Part.Circle(App.Vector(-37.135897, 52.715119, 0), App.Vector(0, 0, 1), 2.5),
    Part.Circle(App.Vector(42.864103, 52.715119, 0), App.Vector(0, 0, 1), 2.5),
], False)
sketch14.addConstraint([
    Sketcher.Constraint("Equal", 0, 1),
    Sketcher.Constraint("Horizontal", 0, 3, 1, 3),
    Sketcher.Constraint("Diameter", 0, 5.0),
    Sketcher.Constraint("DistanceX", 0, 3, 1, 3, 80.0),
    Sketcher.Constraint("DistanceY", -1, 1, 0, 3, 52.715119),
    Sketcher.Constraint("DistanceX", 0, 3, -1, 1, 37.135897),
])
sketch14.setExpression("Constraints[2]", "Params.sketch14_diameter")
pad7 = body2.newObject("PartDesign::Pad", "Pad006")
pad7.Profile = sketch14
pad7.setExpression("Length", "Params.pad7_length")
pad7.Reversed = True

# Sketch on XY plane
sketch15 = body2.newObject("Sketcher::SketchObject", "Sketch014")
sketch15.AttachmentSupport = (doc.getObject("XY_Plane001"), [""])
sketch15.MapMode = "FlatFace"
sketch15.AttachmentOffset = App.Placement(App.Vector(0, 0, 22.715119), App.Rotation())
sketch15.addGeometry([
    Part.LineSegment(App.Vector(47.864103, -32, 0), App.Vector(47.864103, -42, 0)),
    Part.LineSegment(App.Vector(47.864103, -42, 0), App.Vector(37.864103, -42, 0)),
    Part.LineSegment(App.Vector(37.864103, -42, 0), App.Vector(37.864103, -32, 0)),
    Part.LineSegment(App.Vector(37.864103, -32, 0), App.Vector(47.864103, -32, 0)),
], False)
sketch15.addConstraint([
    Sketcher.Constraint("Coincident", 0, 2, 1, 1),
    Sketcher.Constraint("Coincident", 1, 2, 2, 1),
    Sketcher.Constraint("Coincident", 2, 2, 3, 1),
    Sketcher.Constraint("Coincident", 3, 2, 0, 1),
    Sketcher.Constraint("Vertical", 0),
    Sketcher.Constraint("Horizontal", 1),
    Sketcher.Constraint("Vertical", 2),
    Sketcher.Constraint("Horizontal", 3),
    Sketcher.Constraint("Equal", 3, 0),
    Sketcher.Constraint("DistanceX", 1, 2, 1, 1, 10.0),
    Sketcher.Constraint("DistanceY", 0, 2, -1, 1, 42.0),
    Sketcher.Constraint("DistanceX", -1, 1, 0, 2, 47.864103),
])
sketch15.setExpression("Constraints[9]", "Params.sketch15_width")
pad8 = body2.newObject("PartDesign::Pad", "Pad007")
pad8.Profile = sketch15
pad8.setExpression("Length", "Params.pad8_length")
doc.recompute()

datumplane3 = body2.newObject("PartDesign::Plane", "DatumPlane002")
datumplane3.AttachmentSupport = (doc.getObject("YZ_Plane001"), [""])
datumplane3.MapMode = "FlatFace"
datumplane3.AttachmentOffset = App.Placement(App.Vector(0, 0, 2.864103), App.Rotation())
mirrored3 = body2.newObject("PartDesign::Mirrored", "Mirrored002")
mirrored3.Originals = [pad8]
mirrored3.MirrorPlane = (datumplane3, [""])
body2.Tip = mirrored3

# Sketch on YZ plane
sketch16 = body2.newObject("Sketcher::SketchObject", "Sketch015")
sketch16.AttachmentSupport = (doc.getObject("YZ_Plane001"), [""])
sketch16.MapMode = "FlatFace"
sketch16.AttachmentOffset = App.Placement(App.Vector(0, 0, 47.864103), App.Rotation())
sketch16.addGeometry([
    Part.LineSegment(App.Vector(-32, 32.715119, 0), App.Vector(-42, 42.715119, 0)),
    Part.LineSegment(App.Vector(-42, 42.715119, 0), App.Vector(-42, 32.715119, 0)),
    Part.LineSegment(App.Vector(-42, 32.715119, 0), App.Vector(-32, 32.715119, 0)),
], False)
sketch16.addConstraint([
    Sketcher.Constraint("Coincident", 0, 2, 1, 1),
    Sketcher.Constraint("Coincident", 1, 2, 2, 1),
    Sketcher.Constraint("Coincident", 2, 2, 0, 1),
    Sketcher.Constraint("Vertical", 1),
    Sketcher.Constraint("Horizontal", 2),
    Sketcher.Constraint("Equal", 2, 1),
    Sketcher.Constraint("DistanceX", 2, 1, 2, 2, 10.0),
    Sketcher.Constraint("DistanceX", 0, 2, -1, 1, 42.0),
    Sketcher.Constraint("DistanceY", -1, 1, 0, 2, 42.715119),
])
sketch16.setExpression("Constraints[6]", "Params.sketch16_width")
pad9 = body2.newObject("PartDesign::Pad", "Pad008")
pad9.Profile = sketch16
pad9.setExpression("Length", "Params.pad9_length")
pad9.Reversed = True

# Sketch on YZ plane
sketch17 = body2.newObject("Sketcher::SketchObject", "Sketch016")
sketch17.AttachmentSupport = (doc.getObject("YZ_Plane001"), [""])
sketch17.MapMode = "FlatFace"
sketch17.AttachmentOffset = App.Placement(App.Vector(0, 0, -42.135897), App.Rotation())
sketch17.addGeometry([
    Part.LineSegment(App.Vector(-42, 42.715119, 0), App.Vector(-32, 32.715119, 0)),
    Part.LineSegment(App.Vector(-32, 32.715119, 0), App.Vector(-42, 32.715119, 0)),
    Part.LineSegment(App.Vector(-42, 32.715119, 0), App.Vector(-42, 42.715119, 0)),
], False)
sketch17.addConstraint([
    Sketcher.Constraint("Coincident", 0, 2, 1, 1),
    Sketcher.Constraint("Coincident", 1, 2, 2, 1),
    Sketcher.Constraint("Coincident", 2, 2, 0, 1),
    Sketcher.Constraint("Horizontal", 1),
    Sketcher.Constraint("Vertical", 2),
    Sketcher.Constraint("Equal", 1, 2),
    Sketcher.Constraint("DistanceX", 1, 2, 1, 1, 10.0),
    Sketcher.Constraint("DistanceX", 0, 2, -1, 1, 32.0),
    Sketcher.Constraint("DistanceY", -1, 1, 0, 2, 32.715119),
])
sketch17.setExpression("Constraints[6]", "Params.sketch17_width")
pad10 = body2.newObject("PartDesign::Pad", "Pad009")
pad10.Profile = sketch17
pad10.setExpression("Length", "Params.pad10_length")

doc.recompute()
